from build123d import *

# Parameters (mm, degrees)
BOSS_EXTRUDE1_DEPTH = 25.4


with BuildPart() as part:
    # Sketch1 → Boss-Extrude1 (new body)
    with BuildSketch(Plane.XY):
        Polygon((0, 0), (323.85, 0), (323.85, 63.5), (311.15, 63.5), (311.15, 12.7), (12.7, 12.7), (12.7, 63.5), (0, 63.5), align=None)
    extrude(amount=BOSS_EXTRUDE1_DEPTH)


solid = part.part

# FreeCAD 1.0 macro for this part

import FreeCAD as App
import Part
import Sketcher

V = App.Vector
Q = App.Units.Quantity


def add_polygon(sketch, points):
    """Adds a closed chain of lines whose ends are joined by coincident constraints."""
    first, n = sketch.GeometryCount, len(points)
    for a, b in zip(points, points[1:] + points[:1]):
        sketch.addGeometry(Part.LineSegment(App.Vector(*a, 0), App.Vector(*b, 0)), False)
    for i in range(n):
        sketch.addConstraint(Sketcher.Constraint("Coincident", first + i, 2, first + (i + 1) % n, 1))

doc = App.newDocument("Part")
body = doc.addObject("PartDesign::Body", "Body")

# Sketch on XY plane
sketch1 = body.newObject("Sketcher::SketchObject", "Sketch")
sketch1.AttachmentSupport = (doc.getObject("XY_Plane"), [""])
sketch1.MapMode = "FlatFace"
add_polygon(sketch1, [(0, 0), (324, 0), (324, 64), (311, 64), (311, 13), (13, 13), (13, 64), (0, 64)])  # lines 0-7
sketch1.addConstraint([
    Sketcher.Constraint("Horizontal", 0),
    Sketcher.Constraint("Vertical", 1),
    Sketcher.Constraint("Horizontal", 2),
    Sketcher.Constraint("Vertical", 3),
    Sketcher.Constraint("Horizontal", 4),
    Sketcher.Constraint("Vertical", 5),
    Sketcher.Constraint("Horizontal", 6),
    Sketcher.Constraint("Vertical", 7),
    Sketcher.Constraint("Coincident", 7, 2, -1, 1),
    Sketcher.Constraint("Horizontal", 2, 2, 5, 2),
    Sketcher.Constraint("Equal", 2, 6),
    Sketcher.Constraint("DistanceY", 3, 2, 3, 1, Q("2 in")),
    Sketcher.Constraint("DistanceX", 2, 2, 2, 1, Q("0.5 in")),
    Sketcher.Constraint("DistanceY", 1, 1, 1, 2, Q("2.5 in")),
    Sketcher.Constraint("DistanceX", 0, 1, 0, 2, Q("12.75 in")),
])
pad1 = body.newObject("PartDesign::Pad", "Pad")
pad1.Profile = sketch1
pad1.Length = Q("1 in")

doc.recompute()
